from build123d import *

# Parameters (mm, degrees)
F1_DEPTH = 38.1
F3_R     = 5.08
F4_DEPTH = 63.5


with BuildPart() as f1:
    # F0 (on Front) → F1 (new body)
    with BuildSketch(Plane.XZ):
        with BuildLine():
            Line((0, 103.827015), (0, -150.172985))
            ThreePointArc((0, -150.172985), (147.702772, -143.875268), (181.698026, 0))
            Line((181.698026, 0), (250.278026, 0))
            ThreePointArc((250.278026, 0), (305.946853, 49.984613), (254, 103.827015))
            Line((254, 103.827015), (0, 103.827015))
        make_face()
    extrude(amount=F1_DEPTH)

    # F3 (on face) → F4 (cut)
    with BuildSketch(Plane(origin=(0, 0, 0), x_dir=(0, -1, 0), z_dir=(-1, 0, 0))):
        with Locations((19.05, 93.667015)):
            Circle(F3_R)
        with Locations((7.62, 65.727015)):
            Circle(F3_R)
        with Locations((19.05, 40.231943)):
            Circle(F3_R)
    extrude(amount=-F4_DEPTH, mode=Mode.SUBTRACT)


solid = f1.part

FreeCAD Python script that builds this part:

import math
import FreeCAD as App
import Part
import Sketcher

V = App.Vector
Q = App.Units.Quantity

doc = App.newDocument("Part")
params = doc.addObject("Spreadsheet::Sheet", "Params")
for row, (alias, value) in enumerate([
    ("sketch1_width", "10 in"),
    ("sketch1_width2", "2.7 in"),
    ("pad1_length", "1.5 in"),
    ("sketch2_diameter", "0.4 in"),
    ("pocket1_length", "2.5 in"),
], start=1):
    params.set(f"A{row}", alias)
    params.set(f"B{row}", "=" + value)
    params.setAlias(f"B{row}", alias)

body = doc.addObject("PartDesign::Body", "Body")

sketch1 = body.newObject("Sketcher::SketchObject", "Sketch")
sketch1.AttachmentSupport = (doc.getObject("XZ_Plane"), [""])
sketch1.MapMode = "FlatFace"
sketch1.addGeometry(Part.LineSegment(V(0, 104, 0), V(0, -150, 0)), False)
sketch1.addGeometry(Part.ArcOfCircle(Part.Circle(V(70, -49, 0), V(0, 0, 1), 122), math.radians(-125), math.radians(24)), False)
sketch1.addGeometry(Part.LineSegment(V(182, 0, 0), V(250, 0, 0)), False)
sketch1.addGeometry(Part.ArcOfCircle(Part.Circle(V(254, 52, 0), V(0, 0, 1), 52), math.radians(-94), math.radians(90)), False)
sketch1.addGeometry(Part.LineSegment(V(254, 104, 0), V(0, 104, 0)), False)
sketch1.addConstraint(Sketcher.Constraint("Coincident", 0, 2, 1, 1))
sketch1.addConstraint(Sketcher.Constraint("Coincident", 1, 2, 2, 1))
sketch1.addConstraint(Sketcher.Constraint("Coincident", 2, 2, 3, 1))
sketch1.addConstraint(Sketcher.Constraint("Tangent", 3, 2, 4, 1))
sketch1.addConstraint(Sketcher.Constraint("Coincident", 4, 2, 0, 1))
sketch1.addConstraint(Sketcher.Constraint("Vertical", 0))
sketch1.addConstraint(Sketcher.Constraint("Horizontal", 2))
sketch1.addConstraint(Sketcher.Constraint("Horizontal", 4))
sketch1.addConstraint(Sketcher.Constraint("PointOnObject", 0, 2, -2))
sketch1.addConstraint(Sketcher.Constraint("PointOnObject", 1, 2, -1))
sketch1.addConstraint(Sketcher.Constraint("Equal", 4, 0))
sketch1.addConstraint(Sketcher.Constraint("DistanceX", 4, 2, 4, 1, Q("10 in")))
sketch1.addConstraint(Sketcher.Constraint("DistanceX", 2, 1, 2, 2, Q("2.7 in")))
sketch1.addConstraint(Sketcher.Constraint("Radius", 1, Q("122.451412 mm")))
sketch1.addConstraint(Sketcher.Constraint("Radius", 3, Q("51.98022 mm")))
sketch1.addConstraint(Sketcher.Constraint("DistanceX", -1, 1, 1, 3, Q("69.692703 mm")))
sketch1.setExpression("Constraints[11]", "Params.sketch1_width")
sketch1.setExpression("Constraints[12]", "Params.sketch1_width2")
pad1 = body.newObject("PartDesign::Pad", "Pad")
pad1.Profile = sketch1
pad1.setExpression("Length", "Params.pad1_length")

sketch2 = body.newObject("Sketcher::SketchObject", "Sketch001")
sketch2.AttachmentSupport = (doc.getObject("YZ_Plane"), [""])
sketch2.MapMode = "FlatFace"
sketch2.addGeometry(Part.Circle(V(-19, 94, 0), V(0, 0, 1), 5), False)
sketch2.addGeometry(Part.Circle(V(-8, 66, 0), V(0, 0, 1), 5), False)
sketch2.addGeometry(Part.Circle(V(-19, 40, 0), V(0, 0, 1), 5), False)
sketch2.addConstraint(Sketcher.Constraint("Equal", 0, 1))
sketch2.addConstraint(Sketcher.Constraint("Equal", 1, 2))
sketch2.addConstraint(Sketcher.Constraint("Vertical", 0, 3, 2, 3))
sketch2.addConstraint(Sketcher.Constraint("Diameter", 0, Q("0.4 in")))
sketch2.addConstraint(Sketcher.Constraint("DistanceX", 1, 3, -1, 1, Q("0.3 in")))
sketch2.addConstraint(Sketcher.Constraint("DistanceY", 1, 3, 0, 3, Q("1.1 in")))
sketch2.addConstraint(Sketcher.Constraint("DistanceX", 0, 3, -1, 1, Q("0.75 in")))
sketch2.addConstraint(Sketcher.Constraint("DistanceY", 2, 3, 1, 3, Q("25.495072 mm")))
sketch2.addConstraint(Sketcher.Constraint("DistanceY", -1, 1, 0, 3, Q("93.667015 mm")))
sketch2.setExpression("Constraints[3]", "Params.sketch2_diameter")
pocket1 = body.newObject("PartDesign::Pocket", "Pocket")
pocket1.Profile = sketch2
pocket1.setExpression("Length", "Params.pocket1_length")
pocket1.Reversed = True

doc.recompute()
